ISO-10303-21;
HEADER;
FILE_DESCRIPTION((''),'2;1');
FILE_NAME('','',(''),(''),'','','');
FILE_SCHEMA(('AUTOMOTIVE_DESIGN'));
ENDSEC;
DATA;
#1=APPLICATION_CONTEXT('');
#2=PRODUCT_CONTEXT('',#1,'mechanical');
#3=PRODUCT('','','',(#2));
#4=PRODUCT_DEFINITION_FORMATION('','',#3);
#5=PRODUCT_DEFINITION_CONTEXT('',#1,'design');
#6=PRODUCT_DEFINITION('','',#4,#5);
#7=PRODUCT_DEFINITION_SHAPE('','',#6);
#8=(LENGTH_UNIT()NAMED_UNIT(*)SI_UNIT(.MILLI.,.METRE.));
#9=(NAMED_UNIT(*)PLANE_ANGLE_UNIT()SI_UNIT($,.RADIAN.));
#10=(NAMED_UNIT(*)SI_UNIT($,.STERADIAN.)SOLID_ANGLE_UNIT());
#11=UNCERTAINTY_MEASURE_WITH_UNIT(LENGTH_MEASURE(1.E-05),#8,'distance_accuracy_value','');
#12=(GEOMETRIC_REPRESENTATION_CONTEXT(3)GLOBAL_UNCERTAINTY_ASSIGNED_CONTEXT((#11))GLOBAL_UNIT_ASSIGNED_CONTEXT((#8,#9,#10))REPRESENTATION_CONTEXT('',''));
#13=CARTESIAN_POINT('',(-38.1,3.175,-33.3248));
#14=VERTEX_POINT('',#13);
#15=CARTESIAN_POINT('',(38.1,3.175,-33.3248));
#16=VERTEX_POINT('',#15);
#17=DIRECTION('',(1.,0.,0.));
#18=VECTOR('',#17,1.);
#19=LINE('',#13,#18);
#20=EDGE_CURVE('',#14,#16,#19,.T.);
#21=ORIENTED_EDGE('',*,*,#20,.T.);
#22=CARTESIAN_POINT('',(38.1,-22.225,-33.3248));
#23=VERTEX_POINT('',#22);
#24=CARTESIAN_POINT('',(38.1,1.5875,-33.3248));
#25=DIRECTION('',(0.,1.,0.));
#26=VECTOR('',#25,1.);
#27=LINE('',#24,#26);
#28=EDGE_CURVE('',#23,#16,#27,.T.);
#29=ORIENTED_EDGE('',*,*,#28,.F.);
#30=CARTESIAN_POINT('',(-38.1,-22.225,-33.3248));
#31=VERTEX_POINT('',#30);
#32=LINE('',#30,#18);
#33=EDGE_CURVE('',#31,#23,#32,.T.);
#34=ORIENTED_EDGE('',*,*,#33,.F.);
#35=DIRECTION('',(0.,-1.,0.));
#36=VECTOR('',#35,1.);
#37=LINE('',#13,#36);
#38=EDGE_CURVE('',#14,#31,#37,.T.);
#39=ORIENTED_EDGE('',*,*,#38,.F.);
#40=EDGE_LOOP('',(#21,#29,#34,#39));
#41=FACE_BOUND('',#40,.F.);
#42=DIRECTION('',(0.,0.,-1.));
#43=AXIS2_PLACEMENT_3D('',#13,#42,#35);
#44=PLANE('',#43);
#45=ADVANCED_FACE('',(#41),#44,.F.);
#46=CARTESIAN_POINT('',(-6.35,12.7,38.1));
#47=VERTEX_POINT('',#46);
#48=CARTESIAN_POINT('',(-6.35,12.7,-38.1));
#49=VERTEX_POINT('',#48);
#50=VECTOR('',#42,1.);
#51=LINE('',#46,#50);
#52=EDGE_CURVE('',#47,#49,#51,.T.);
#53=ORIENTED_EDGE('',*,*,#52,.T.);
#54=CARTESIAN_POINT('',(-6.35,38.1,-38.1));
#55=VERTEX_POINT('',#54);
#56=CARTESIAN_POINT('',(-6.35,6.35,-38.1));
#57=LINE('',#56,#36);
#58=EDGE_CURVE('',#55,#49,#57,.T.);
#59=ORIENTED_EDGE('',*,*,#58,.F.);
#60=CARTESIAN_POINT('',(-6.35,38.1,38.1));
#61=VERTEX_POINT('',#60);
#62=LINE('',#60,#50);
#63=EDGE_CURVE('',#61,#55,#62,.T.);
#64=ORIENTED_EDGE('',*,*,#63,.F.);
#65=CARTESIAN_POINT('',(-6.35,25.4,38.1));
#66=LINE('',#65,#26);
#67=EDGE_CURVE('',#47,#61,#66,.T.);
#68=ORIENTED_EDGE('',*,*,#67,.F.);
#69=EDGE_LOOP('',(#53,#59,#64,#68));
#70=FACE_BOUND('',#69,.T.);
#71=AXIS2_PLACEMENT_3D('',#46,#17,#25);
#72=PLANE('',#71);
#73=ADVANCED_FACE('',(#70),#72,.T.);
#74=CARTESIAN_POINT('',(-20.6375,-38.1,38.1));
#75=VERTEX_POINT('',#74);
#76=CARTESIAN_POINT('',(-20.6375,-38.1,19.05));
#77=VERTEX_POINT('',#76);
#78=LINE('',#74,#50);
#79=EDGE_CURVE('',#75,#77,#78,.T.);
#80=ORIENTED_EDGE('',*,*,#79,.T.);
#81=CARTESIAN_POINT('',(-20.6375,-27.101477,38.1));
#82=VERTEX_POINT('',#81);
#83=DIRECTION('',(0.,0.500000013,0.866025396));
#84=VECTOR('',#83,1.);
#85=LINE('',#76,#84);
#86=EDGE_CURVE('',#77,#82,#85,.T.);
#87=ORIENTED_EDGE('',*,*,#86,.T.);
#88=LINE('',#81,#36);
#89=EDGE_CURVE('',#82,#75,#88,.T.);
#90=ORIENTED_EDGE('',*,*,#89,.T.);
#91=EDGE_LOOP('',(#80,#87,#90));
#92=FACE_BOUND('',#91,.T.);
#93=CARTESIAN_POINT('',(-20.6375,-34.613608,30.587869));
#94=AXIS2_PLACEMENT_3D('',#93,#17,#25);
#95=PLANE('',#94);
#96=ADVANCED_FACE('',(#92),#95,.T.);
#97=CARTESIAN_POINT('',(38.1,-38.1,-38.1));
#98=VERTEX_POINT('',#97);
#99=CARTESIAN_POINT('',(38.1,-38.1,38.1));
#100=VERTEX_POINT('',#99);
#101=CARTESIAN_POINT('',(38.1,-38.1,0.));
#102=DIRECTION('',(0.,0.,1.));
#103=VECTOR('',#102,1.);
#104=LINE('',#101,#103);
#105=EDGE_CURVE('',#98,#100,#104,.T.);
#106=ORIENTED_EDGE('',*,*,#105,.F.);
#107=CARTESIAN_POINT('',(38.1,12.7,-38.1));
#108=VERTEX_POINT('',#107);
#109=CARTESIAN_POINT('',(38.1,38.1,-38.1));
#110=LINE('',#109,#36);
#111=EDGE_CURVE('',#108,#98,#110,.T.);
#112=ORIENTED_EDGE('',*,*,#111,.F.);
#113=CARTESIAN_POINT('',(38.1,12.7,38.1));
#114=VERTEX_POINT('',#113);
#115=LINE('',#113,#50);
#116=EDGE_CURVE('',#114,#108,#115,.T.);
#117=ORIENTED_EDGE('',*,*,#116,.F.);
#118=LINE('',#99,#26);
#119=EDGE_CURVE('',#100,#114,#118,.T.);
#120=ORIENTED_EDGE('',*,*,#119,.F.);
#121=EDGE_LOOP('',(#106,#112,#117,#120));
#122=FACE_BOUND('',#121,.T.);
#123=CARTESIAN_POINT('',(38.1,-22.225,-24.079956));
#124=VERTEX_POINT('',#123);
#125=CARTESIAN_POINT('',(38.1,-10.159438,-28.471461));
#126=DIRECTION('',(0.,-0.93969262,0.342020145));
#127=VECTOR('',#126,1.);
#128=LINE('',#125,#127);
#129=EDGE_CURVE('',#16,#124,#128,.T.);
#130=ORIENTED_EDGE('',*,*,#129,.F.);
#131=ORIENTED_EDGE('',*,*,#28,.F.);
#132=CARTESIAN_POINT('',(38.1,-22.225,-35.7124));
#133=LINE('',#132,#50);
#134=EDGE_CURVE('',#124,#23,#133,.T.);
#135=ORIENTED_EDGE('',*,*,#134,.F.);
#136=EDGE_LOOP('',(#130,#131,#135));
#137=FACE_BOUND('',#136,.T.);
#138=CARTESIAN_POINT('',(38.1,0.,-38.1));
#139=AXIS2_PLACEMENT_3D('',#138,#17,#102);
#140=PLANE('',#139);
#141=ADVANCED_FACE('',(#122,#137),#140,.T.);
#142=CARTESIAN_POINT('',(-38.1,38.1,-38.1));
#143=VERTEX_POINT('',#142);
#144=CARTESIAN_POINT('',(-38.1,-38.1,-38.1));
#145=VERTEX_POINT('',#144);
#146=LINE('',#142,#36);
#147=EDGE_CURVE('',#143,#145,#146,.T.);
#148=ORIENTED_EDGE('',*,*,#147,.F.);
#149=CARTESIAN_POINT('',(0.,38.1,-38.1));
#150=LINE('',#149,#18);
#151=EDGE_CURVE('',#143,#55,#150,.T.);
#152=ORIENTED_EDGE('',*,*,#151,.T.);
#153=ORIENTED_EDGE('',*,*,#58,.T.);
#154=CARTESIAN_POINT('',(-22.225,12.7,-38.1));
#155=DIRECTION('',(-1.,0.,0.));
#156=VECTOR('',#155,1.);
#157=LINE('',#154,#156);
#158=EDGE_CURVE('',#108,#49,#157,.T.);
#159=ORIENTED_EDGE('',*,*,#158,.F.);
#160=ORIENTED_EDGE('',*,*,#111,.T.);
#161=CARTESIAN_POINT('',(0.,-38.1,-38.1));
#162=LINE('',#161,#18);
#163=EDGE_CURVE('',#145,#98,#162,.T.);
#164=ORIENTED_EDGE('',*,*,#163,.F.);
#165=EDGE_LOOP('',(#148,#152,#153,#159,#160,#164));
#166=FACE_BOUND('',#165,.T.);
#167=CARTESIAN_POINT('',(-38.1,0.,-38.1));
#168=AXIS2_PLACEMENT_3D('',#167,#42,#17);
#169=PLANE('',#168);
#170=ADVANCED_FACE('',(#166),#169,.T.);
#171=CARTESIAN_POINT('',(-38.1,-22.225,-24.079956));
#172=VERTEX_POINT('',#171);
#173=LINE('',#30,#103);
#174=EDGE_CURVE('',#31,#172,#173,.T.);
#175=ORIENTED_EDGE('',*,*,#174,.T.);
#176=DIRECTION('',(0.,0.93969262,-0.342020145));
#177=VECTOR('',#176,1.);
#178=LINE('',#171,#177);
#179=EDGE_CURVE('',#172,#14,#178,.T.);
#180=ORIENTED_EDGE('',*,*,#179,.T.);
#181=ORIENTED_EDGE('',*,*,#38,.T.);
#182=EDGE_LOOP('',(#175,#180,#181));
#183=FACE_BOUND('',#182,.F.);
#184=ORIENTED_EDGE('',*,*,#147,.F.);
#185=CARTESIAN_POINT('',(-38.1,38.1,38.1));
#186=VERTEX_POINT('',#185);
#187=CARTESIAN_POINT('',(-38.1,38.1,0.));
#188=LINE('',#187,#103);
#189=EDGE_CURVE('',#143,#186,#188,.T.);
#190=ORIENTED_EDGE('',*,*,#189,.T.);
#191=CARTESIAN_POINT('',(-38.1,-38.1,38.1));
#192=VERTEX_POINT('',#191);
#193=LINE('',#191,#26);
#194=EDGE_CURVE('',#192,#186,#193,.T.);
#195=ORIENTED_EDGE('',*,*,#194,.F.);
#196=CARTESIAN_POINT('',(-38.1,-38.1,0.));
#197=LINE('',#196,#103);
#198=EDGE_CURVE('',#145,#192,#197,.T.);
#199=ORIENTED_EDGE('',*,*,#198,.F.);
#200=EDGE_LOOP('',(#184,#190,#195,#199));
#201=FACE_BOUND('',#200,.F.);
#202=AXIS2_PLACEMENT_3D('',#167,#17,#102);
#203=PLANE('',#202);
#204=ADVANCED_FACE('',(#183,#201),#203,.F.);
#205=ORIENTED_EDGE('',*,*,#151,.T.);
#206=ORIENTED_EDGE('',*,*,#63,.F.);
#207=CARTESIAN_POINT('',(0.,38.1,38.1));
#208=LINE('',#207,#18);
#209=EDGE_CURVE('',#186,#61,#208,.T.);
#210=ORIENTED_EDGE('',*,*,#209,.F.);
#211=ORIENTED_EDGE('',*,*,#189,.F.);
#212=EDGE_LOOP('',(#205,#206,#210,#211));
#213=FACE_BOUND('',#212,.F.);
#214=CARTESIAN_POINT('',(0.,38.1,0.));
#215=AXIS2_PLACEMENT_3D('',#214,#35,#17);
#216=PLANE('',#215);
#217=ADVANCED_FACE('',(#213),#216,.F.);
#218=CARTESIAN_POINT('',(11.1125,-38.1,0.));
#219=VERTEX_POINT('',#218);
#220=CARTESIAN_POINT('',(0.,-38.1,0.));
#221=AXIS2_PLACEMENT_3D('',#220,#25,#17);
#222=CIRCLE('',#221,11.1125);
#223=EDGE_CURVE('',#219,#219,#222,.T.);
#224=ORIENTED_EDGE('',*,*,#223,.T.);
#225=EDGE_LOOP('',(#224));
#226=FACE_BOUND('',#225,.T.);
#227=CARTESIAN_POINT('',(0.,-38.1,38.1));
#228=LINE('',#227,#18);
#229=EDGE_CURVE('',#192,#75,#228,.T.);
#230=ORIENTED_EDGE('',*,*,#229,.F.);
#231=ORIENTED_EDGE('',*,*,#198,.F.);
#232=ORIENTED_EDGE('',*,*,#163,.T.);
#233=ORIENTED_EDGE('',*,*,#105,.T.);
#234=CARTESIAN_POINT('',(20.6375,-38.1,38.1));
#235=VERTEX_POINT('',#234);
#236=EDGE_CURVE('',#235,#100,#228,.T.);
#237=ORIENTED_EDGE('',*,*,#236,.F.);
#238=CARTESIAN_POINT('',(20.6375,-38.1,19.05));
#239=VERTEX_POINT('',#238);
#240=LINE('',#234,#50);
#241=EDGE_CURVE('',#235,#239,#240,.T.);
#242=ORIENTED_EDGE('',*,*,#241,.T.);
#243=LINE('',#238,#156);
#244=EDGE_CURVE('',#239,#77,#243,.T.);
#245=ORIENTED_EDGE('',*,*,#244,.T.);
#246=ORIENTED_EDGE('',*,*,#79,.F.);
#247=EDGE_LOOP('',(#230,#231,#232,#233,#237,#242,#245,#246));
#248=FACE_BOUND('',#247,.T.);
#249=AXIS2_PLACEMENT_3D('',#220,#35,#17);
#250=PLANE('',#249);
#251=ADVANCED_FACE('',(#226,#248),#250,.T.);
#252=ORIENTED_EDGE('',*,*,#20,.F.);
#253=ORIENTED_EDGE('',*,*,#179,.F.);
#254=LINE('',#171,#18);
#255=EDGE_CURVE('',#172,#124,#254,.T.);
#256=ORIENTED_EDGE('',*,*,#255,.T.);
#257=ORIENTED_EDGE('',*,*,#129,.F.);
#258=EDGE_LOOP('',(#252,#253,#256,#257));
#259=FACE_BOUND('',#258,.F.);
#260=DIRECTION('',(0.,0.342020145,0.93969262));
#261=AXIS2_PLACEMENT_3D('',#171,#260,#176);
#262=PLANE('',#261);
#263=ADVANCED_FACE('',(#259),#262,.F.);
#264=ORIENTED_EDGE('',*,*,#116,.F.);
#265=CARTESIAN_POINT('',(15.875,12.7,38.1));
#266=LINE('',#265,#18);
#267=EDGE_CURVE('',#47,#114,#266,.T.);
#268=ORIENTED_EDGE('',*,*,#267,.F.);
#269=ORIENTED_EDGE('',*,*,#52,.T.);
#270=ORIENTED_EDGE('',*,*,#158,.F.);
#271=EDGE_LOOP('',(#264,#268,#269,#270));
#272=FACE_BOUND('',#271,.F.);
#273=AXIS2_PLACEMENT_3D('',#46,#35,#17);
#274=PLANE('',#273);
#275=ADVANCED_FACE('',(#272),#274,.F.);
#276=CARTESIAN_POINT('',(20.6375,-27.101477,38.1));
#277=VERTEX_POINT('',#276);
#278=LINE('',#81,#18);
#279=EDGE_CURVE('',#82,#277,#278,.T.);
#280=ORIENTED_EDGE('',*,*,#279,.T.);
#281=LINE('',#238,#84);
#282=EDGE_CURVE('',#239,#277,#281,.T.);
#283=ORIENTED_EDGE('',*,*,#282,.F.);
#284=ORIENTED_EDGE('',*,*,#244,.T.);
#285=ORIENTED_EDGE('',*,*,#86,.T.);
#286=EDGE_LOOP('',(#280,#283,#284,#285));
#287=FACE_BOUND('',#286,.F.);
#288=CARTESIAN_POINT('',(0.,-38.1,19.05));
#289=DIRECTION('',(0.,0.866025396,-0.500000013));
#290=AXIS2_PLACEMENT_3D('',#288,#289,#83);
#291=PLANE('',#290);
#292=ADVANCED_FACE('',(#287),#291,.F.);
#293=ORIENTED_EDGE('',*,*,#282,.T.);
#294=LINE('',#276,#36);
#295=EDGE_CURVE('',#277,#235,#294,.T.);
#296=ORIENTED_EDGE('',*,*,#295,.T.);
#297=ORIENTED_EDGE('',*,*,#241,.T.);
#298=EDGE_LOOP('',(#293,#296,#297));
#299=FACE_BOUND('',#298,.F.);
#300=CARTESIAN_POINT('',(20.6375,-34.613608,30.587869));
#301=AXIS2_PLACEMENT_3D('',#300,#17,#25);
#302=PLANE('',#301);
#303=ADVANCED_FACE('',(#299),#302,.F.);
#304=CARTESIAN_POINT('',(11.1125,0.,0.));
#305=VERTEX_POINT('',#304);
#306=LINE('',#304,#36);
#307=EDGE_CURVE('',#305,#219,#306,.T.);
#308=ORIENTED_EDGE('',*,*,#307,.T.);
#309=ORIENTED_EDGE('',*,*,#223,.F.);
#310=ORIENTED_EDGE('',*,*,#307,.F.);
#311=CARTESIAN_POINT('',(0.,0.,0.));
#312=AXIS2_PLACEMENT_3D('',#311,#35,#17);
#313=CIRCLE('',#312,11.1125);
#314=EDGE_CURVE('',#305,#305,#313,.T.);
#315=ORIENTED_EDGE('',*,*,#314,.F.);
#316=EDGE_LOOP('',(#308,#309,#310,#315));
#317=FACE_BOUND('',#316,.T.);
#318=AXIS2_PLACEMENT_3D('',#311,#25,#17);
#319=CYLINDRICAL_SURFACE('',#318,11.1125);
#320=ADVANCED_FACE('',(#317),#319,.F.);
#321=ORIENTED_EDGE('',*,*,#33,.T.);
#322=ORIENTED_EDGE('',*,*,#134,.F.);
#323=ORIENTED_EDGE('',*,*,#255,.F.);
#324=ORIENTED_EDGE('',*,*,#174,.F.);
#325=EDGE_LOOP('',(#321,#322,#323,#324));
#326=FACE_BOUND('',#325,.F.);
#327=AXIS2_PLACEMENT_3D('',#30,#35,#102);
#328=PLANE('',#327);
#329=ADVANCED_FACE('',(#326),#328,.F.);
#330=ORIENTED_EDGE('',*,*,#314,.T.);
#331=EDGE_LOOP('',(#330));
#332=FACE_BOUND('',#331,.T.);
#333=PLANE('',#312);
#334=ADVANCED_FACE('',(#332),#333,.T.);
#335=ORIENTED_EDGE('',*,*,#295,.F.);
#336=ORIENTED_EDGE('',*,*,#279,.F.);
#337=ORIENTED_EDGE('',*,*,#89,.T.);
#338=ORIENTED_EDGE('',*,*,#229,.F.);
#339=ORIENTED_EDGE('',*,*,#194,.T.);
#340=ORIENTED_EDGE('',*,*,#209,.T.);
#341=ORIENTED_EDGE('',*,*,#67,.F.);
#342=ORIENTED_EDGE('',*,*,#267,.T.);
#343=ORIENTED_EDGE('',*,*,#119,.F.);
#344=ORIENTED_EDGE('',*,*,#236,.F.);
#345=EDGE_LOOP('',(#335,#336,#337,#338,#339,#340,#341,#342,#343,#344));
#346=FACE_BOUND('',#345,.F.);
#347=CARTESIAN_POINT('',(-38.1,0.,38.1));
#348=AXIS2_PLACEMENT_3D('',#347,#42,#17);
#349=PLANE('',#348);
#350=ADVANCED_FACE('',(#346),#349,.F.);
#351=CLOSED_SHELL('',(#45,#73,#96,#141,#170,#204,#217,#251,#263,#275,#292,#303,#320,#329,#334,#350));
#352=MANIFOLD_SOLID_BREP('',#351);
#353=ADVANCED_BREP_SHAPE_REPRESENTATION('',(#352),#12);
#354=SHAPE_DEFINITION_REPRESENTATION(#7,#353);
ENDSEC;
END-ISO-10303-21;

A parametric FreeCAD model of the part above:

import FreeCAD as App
import Part
import Sketcher
from FreeCAD import Vector
Q = App.Units.Quantity


def add_polygon(sketch, points):
    """Adds a closed chain of lines whose ends are joined by coincident constraints."""
    first, n = sketch.GeometryCount, len(points)
    for a, b in zip(points, points[1:] + points[:1]):
        sketch.addGeometry(Part.LineSegment(App.Vector(*a, 0), App.Vector(*b, 0)), False)
    for i in range(n):
        sketch.addConstraint(Sketcher.Constraint("Coincident", first + i, 2, first + (i + 1) % n, 1))

doc = App.newDocument("Part")
body = doc.addObject("PartDesign::Body", "Body")

sketch1 = doc.addObject("Sketcher::SketchObject", "Sketch")
body.addObject(sketch1)
sketch1.AttachmentSupport = (doc.XZ_Plane, [""])
sketch1.MapMode = "FlatFace"
add_polygon(sketch1, [(-38, 38), (-38, -38), (38, -38), (38, 38)])
sketch1.addConstraint([
    Sketcher.Constraint("Vertical", 0),
    Sketcher.Constraint("Horizontal", 1),
    Sketcher.Constraint("Vertical", 2),
    Sketcher.Constraint("Horizontal", 3),
    Sketcher.Constraint("Symmetric", 0, 2, 2, 2, -1, 1),
    Sketcher.Constraint("Equal", 3, 0),
    Sketcher.Constraint("DistanceX", 1, 1, 1, 2, Q("3 in")),
])
pad1 = doc.addObject("PartDesign::Pad", "Pad")
body.addObject(pad1)
pad1.Profile = sketch1
pad1.Length = Q("3 in")
pad1.Midplane = True

sketch2 = doc.addObject("Sketcher::SketchObject", "Sketch001")
body.addObject(sketch2)
sketch2.AttachmentSupport = (doc.XZ_Plane, [""])
sketch2.MapMode = "FlatFace"
sketch2.addGeometry(Part.Circle(Vector(0, 0, 0), Vector(0, 0, 1), 11), False)
sketch2.addConstraint([
    Sketcher.Constraint("Coincident", 0, 3, -1, 1),
    Sketcher.Constraint("Diameter", 0, Q("0.875 in")),
])
pocket1 = doc.addObject("PartDesign::Pocket", "Pocket")
body.addObject(pocket1)
pocket1.Profile = sketch2
pocket1.Type = "ThroughAll"
pocket1.Reversed = True

sketch3 = doc.addObject("Sketcher::SketchObject", "Sketch002")
body.addObject(sketch3)
sketch3.AttachmentSupport = (doc.YZ_Plane, [""])
sketch3.MapMode = "FlatFace"
add_polygon(sketch3, [(-38, 19), (-27, 38), (-38, 38)])
sketch3.addConstraint([
    Sketcher.Constraint("Horizontal", 1),
    Sketcher.Constraint("Vertical", 2),
    Sketcher.Constraint("Angle", 0, Q("59.999999 deg")),
    Sketcher.Constraint("DistanceY", 2, 2, 2, 1, Q("0.75 in")),
    Sketcher.Constraint("DistanceY", -1, 1, 0, 2, Q("1.5 in")),
    Sketcher.Constraint("DistanceX", 1, 2, -1, 1, Q("1.5 in")),
])
pocket2 = doc.addObject("PartDesign::Pocket", "Pocket001")
body.addObject(pocket2)
pocket2.Profile = sketch3
pocket2.Length = Q("1.625 in")
pocket2.Midplane = True

sketch4 = doc.addObject("Sketcher::SketchObject", "Sketch003")
body.addObject(sketch4)
sketch4.AttachmentSupport = (doc.XY_Plane, [""])
sketch4.MapMode = "FlatFace"
sketch4.AttachmentOffset = App.Placement(Vector(0, 0, 1.5 * 25.4), App.Rotation())
add_polygon(sketch4, [(-6, 38), (-6, 13), (38, 13), (38, 38)])
sketch4.addConstraint([
    Sketcher.Constraint("Vertical", 0),
    Sketcher.Constraint("Horizontal", 1),
    Sketcher.Constraint("Vertical", 2),
    Sketcher.Constraint("Horizontal", 3),
    Sketcher.Constraint("DistanceY", 0, 2, 0, 1, Q("1 in")),
    Sketcher.Constraint("DistanceX", 1, 1, 1, 2, Q("1.75 in")),
    Sketcher.Constraint("DistanceY", -1, 1, 0, 2, Q("0.5 in")),
    Sketcher.Constraint("DistanceX", -1, 1, 1, 2, Q("1.5 in")),
])
pocket3 = doc.addObject("PartDesign::Pocket", "Pocket002")
body.addObject(pocket3)
pocket3.Profile = sketch4
pocket3.Type = "ThroughAll"

sketch5 = doc.addObject("Sketcher::SketchObject", "Sketch004")
body.addObject(sketch5)
sketch5.AttachmentSupport = (doc.YZ_Plane, [""])
sketch5.MapMode = "FlatFace"
sketch5.AttachmentOffset = App.Placement(Vector(0, 0, -1.5 * 25.4), App.Rotation())
add_polygon(sketch5, [(-22, -24), (3, -33), (-22, -33)])
sketch5.addConstraint([
    Sketcher.Constraint("Horizontal", 1),
    Sketcher.Constraint("Vertical", 2),
    Sketcher.Constraint("DistanceX", 1, 2, 1, 1, Q("1 in")),
    Sketcher.Constraint("Angle", 0, Q("-20 deg")),
    Sketcher.Constraint("DistanceX", -1, 1, 0, 2, Q("0.125 in")),
    Sketcher.Constraint("DistanceY", 0, 2, -1, 1, Q("1.312 in")),
])
pocket4 = doc.addObject("PartDesign::Pocket", "Pocket003")
body.addObject(pocket4)
pocket4.Profile = sketch5
pocket4.Type = "ThroughAll"
pocket4.Reversed = True

doc.recompute()
